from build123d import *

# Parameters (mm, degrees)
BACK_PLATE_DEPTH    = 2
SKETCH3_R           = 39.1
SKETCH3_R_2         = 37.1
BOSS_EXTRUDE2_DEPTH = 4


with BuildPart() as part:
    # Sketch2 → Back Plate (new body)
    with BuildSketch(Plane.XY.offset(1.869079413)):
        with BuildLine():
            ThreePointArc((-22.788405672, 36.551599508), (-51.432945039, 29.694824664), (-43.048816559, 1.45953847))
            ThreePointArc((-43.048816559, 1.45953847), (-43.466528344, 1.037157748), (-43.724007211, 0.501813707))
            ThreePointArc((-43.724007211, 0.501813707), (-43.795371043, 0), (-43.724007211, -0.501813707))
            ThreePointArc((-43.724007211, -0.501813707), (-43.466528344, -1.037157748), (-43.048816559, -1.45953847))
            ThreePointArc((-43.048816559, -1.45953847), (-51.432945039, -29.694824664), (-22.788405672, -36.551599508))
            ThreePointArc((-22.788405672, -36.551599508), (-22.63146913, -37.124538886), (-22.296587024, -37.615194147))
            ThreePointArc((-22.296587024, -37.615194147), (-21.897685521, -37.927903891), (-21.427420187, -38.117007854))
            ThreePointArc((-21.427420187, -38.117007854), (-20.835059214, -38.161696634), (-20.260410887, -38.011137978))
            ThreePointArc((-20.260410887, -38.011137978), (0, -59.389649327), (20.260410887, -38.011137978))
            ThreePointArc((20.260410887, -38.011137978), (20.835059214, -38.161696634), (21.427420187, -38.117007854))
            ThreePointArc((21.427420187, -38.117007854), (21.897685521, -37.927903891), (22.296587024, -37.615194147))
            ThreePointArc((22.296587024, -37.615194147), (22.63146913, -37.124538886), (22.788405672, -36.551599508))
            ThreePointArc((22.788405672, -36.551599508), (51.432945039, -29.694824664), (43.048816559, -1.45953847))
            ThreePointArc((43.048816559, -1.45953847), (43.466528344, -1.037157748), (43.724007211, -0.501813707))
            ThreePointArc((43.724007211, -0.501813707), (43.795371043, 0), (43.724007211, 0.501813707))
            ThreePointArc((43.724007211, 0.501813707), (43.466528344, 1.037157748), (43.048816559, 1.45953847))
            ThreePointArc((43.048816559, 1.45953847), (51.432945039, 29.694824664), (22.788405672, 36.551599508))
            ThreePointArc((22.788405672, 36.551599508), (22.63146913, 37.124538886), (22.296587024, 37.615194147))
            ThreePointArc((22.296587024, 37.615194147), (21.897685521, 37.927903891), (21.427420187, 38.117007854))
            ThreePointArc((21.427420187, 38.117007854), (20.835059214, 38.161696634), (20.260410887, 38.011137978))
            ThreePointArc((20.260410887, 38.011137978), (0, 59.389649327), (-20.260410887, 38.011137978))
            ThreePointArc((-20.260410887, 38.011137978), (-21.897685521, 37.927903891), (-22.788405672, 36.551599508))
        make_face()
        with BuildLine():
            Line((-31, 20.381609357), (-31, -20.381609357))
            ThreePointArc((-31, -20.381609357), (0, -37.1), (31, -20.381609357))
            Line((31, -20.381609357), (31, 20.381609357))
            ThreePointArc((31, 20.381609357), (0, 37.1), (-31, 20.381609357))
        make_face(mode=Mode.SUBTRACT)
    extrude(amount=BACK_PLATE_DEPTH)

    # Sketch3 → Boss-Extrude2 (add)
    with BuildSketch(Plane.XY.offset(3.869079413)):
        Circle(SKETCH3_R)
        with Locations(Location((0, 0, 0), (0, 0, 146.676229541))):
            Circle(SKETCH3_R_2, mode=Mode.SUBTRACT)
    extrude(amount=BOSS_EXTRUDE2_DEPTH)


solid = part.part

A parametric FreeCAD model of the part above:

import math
import FreeCAD as App
import Part
import Sketcher

V = App.Vector

doc = App.newDocument("Part")
params = doc.addObject("Spreadsheet::Sheet", "Params")
for row, (alias, value) in enumerate([
    ("sketch1_radius", "1.8 mm"),
    ("sketch1_radius2", "37.1 mm"),
    ("pad1_length", "2 mm"),
    ("sketch2_diameter", "78.2 mm"),
    ("sketch2_diameter2", "74.2 mm"),
    ("pad2_length", "4 mm"),
], start=1):
    params.set(f"A{row}", alias)
    params.set(f"B{row}", "=" + value)
    params.setAlias(f"B{row}", alias)

body = doc.addObject("PartDesign::Body", "Body")

# Sketch on XY plane
sketch1 = doc.addObject("Sketcher::SketchObject", "Sketch")
body.addObject(sketch1)
sketch1.AttachmentSupport = (doc.XY_Plane, [""])
sketch1.MapMode = "FlatFace"
sketch1.AttachmentOffset = App.Placement(V(0, 0, 1.869079), App.Rotation())
sketch1.addGeometry([
    Part.ArcOfCircle(Part.Circle(V(-33.9, 19.6, 0), V(0, 0, 1), 20.3), math.radians(57), math.radians(243)),  # 0
    Part.ArcOfCircle(Part.Circle(V(-42, 0, 0), V(0, 0, 1), 1.8), math.radians(126), math.radians(164)),  # 1
    Part.ArcOfCircle(Part.Circle(V(-42, 0, 0), V(0, 0, 1), 1.8), math.radians(164), math.radians(196)),  # 2
    Part.ArcOfCircle(Part.Circle(V(-42, 0, 0), V(0, 0, 1), 1.8), math.radians(-164), math.radians(-126)),  # 3
    Part.ArcOfCircle(Part.Circle(V(-33.9, -19.6, 0), V(0, 0, 1), 20.3), math.radians(117), math.radians(303)),  # 4
    Part.ArcOfCircle(Part.Circle(V(-21, -36.4, 0), V(0, 0, 1), 1.8), math.radians(-174), math.radians(-136)),  # 5
    Part.ArcOfCircle(Part.Circle(V(-21, -36.4, 0), V(0, 0, 1), 1.8), math.radians(-136), math.radians(-104)),  # 6
    Part.ArcOfCircle(Part.Circle(V(-21, -36.4, 0), V(0, 0, 1), 1.8), math.radians(-104), math.radians(-66)),  # 7
    Part.ArcOfCircle(Part.Circle(V(0, -39.1, 0), V(0, 0, 1), 20.3), math.radians(177), math.radians(363)),  # 8
    Part.ArcOfCircle(Part.Circle(V(21, -36.4, 0), V(0, 0, 1), 1.8), math.radians(-114), math.radians(-76)),  # 9
    Part.ArcOfCircle(Part.Circle(V(21, -36.4, 0), V(0, 0, 1), 1.8), math.radians(-76), math.radians(-44)),  # 10
    Part.ArcOfCircle(Part.Circle(V(21, -36.4, 0), V(0, 0, 1), 1.8), math.radians(-44), math.radians(-6)),  # 11
    Part.ArcOfCircle(Part.Circle(V(33.9, -19.6, 0), V(0, 0, 1), 20.3), math.radians(-123), math.radians(63)),  # 12
    Part.ArcOfCircle(Part.Circle(V(42, 0, 0), V(0, 0, 1), 1.8), math.radians(-54), math.radians(-16)),  # 13
    Part.ArcOfCircle(Part.Circle(V(42, 0, 0), V(0, 0, 1), 1.8), math.radians(-16), math.radians(16)),  # 14
    Part.ArcOfCircle(Part.Circle(V(42, 0, 0), V(0, 0, 1), 1.8), math.radians(16), math.radians(54)),  # 15
    Part.ArcOfCircle(Part.Circle(V(33.9, 19.6, 0), V(0, 0, 1), 20.3), math.radians(-63), math.radians(123)),  # 16
    Part.ArcOfCircle(Part.Circle(V(21, 36.4, 0), V(0, 0, 1), 1.8), math.radians(6), math.radians(44)),  # 17
    Part.ArcOfCircle(Part.Circle(V(21, 36.4, 0), V(0, 0, 1), 1.8), math.radians(44), math.radians(76)),  # 18
    Part.ArcOfCircle(Part.Circle(V(21, 36.4, 0), V(0, 0, 1), 1.8), math.radians(76), math.radians(114)),  # 19
    Part.ArcOfCircle(Part.Circle(V(0, 39.1, 0), V(0, 0, 1), 20.3), math.radians(-3), math.radians(183)),  # 20
    Part.ArcOfCircle(Part.Circle(V(-21, 36.4, 0), V(0, 0, 1), 1.8), math.radians(66), math.radians(174)),  # 21
    Part.LineSegment(V(-31, -20.4, 0), V(-31, 20.4, 0)),  # 22
    Part.ArcOfCircle(Part.Circle(V(0, 0, 0), V(0, 0, 1), 37.1), math.radians(33), math.radians(147)),  # 23
    Part.LineSegment(V(31, 20.4, 0), V(31, -20.4, 0)),  # 24
    Part.ArcOfCircle(Part.Circle(V(0, 0, 0), V(0, 0, 1), 37.1), math.radians(-147), math.radians(-33)),  # 25
], False)
sketch1.addConstraint([
    Sketcher.Constraint("Coincident", 0, 2, 1, 1),
    Sketcher.Constraint("Tangent", 1, 2, 2, 1),
    Sketcher.Constraint("Tangent", 2, 2, 3, 1),
    Sketcher.Constraint("Coincident", 3, 2, 4, 1),
    Sketcher.Constraint("Coincident", 4, 2, 5, 1),
    Sketcher.Constraint("Tangent", 5, 2, 6, 1),
    Sketcher.Constraint("Tangent", 6, 2, 7, 1),
    Sketcher.Constraint("Coincident", 7, 2, 8, 1),
    Sketcher.Constraint("Coincident", 8, 2, 9, 1),
    Sketcher.Constraint("Tangent", 9, 2, 10, 1),
    Sketcher.Constraint("Tangent", 10, 2, 11, 1),
    Sketcher.Constraint("Coincident", 11, 2, 12, 1),
    Sketcher.Constraint("Coincident", 12, 2, 13, 1),
    Sketcher.Constraint("Tangent", 13, 2, 14, 1),
    Sketcher.Constraint("Tangent", 14, 2, 15, 1),
    Sketcher.Constraint("Coincident", 15, 2, 16, 1),
    Sketcher.Constraint("Coincident", 16, 2, 17, 1),
    Sketcher.Constraint("Tangent", 17, 2, 18, 1),
    Sketcher.Constraint("Tangent", 18, 2, 19, 1),
    Sketcher.Constraint("Coincident", 19, 2, 20, 1),
    Sketcher.Constraint("Coincident", 20, 2, 21, 1),
    Sketcher.Constraint("Coincident", 21, 2, 0, 1),
    Sketcher.Constraint("Coincident", 22, 2, 23, 2),
    Sketcher.Constraint("Coincident", 23, 1, 24, 1),
    Sketcher.Constraint("Coincident", 24, 2, 25, 2),
    Sketcher.Constraint("Coincident", 25, 1, 22, 1),
    Sketcher.Constraint("Vertical", 22),
    Sketcher.Constraint("Vertical", 24),
    Sketcher.Constraint("Coincident", 23, 3, -1, 1),
    Sketcher.Constraint("Coincident", 25, 3, -1, 1),
    Sketcher.Constraint("Coincident", 3, 3, 1, 3),
    Sketcher.Constraint("Coincident", 7, 3, 5, 3),
    Sketcher.Constraint("Coincident", 11, 3, 9, 3),
    Sketcher.Constraint("Coincident", 15, 3, 13, 3),
    Sketcher.Constraint("Coincident", 19, 3, 17, 3),
    Sketcher.Constraint("Equal", 0, 4),
    Sketcher.Constraint("Equal", 3, 5),
    Sketcher.Constraint("Equal", 4, 8),
    Sketcher.Constraint("Equal", 7, 9),
    Sketcher.Constraint("Equal", 8, 12),
    Sketcher.Constraint("Equal", 11, 13),
    Sketcher.Constraint("Equal", 12, 16),
    Sketcher.Constraint("Equal", 15, 17),
    Sketcher.Constraint("Equal", 16, 20),
    Sketcher.Constraint("Equal", 19, 21),
    Sketcher.Constraint("Equal", 23, 25),
    Sketcher.Constraint("Symmetric", 0, 3, 12, 3, -1, 1),
    Sketcher.Constraint("Symmetric", 1, 3, 13, 3, -1, 1),
    Sketcher.Constraint("Symmetric", 4, 3, 16, 3, -1, 1),
    Sketcher.Constraint("Symmetric", 5, 3, 17, 3, -1, 1),
    Sketcher.Constraint("Symmetric", 8, 3, 20, 3, -1, 1),
    Sketcher.Constraint("Symmetric", 9, 3, 21, 3, -1, 1),
    Sketcher.Constraint("Symmetric", 5, 3, 9, 3, -2),
    Sketcher.Constraint("Symmetric", 4, 3, 12, 3, -2),
    Sketcher.Constraint("Symmetric", 2, 2, 13, 2, -2),
    Sketcher.Constraint("PointOnObject", 8, 3, -2),
    Sketcher.Constraint("Horizontal", 6, 2, 9, 2),
    Sketcher.Constraint("Horizontal", 5, 2, 10, 2),
    Sketcher.Constraint("Horizontal", 1, 2, 14, 2),
    Sketcher.Constraint("Horizontal", 22, 2, 23, 1),
    Sketcher.Constraint("Vertical", 1, 2, 2, 2),
    Sketcher.Constraint("Vertical", 10, 2, 17, 2),
    Sketcher.Constraint("Vertical", 9, 2, 18, 2),
    Sketcher.Constraint("Radius", 1, 1.8),
    Sketcher.Constraint("Radius", 23, 37.1),
    Sketcher.Constraint("DistanceX", 22, 2, -1, 1, 31.0),
    Sketcher.Constraint("DistanceY", 8, 3, -1, 1, 39.1),
    Sketcher.Constraint("DistanceY", 4, 3, 0, 3, 39.1),
    Sketcher.Constraint("Radius", 0, 20.289649),
    Sketcher.Constraint("DistanceY", 4, 2, -1, 1, 36.5516),
    Sketcher.Constraint("DistanceX", 5, 2, 5, 3, 1.298902),
    Sketcher.Constraint("DistanceX", 1, 3, -1, 1, 41.995371),
    Sketcher.Constraint("DistanceY", 5, 3, -1, 1, 36.369058),
    Sketcher.Constraint("DistanceY", -1, 1, 0, 2, 1.459538),
    Sketcher.Constraint("DistanceX", 6, 2, -1, 1, 21.42742),
    Sketcher.Constraint("DistanceX", 1, 2, 0, 2, 0.675191),
])
sketch1.setExpression("Constraints[63]", "Params.sketch1_radius")
sketch1.setExpression("Constraints[64]", "Params.sketch1_radius2")
pad1 = doc.addObject("PartDesign::Pad", "Pad")
body.addObject(pad1)
pad1.Profile = sketch1
pad1.setExpression("Length", "Params.pad1_length")

# Sketch on XY plane
sketch2 = doc.addObject("Sketcher::SketchObject", "Sketch001")
body.addObject(sketch2)
sketch2.AttachmentSupport = (doc.XY_Plane, [""])
sketch2.MapMode = "FlatFace"
sketch2.AttachmentOffset = App.Placement(V(0, 0, 3.869079), App.Rotation())
sketch2.addGeometry([
    Part.Circle(V(0, 0, 0), V(0, 0, 1), 39),
    Part.Circle(V(0, 0, 0), V(0, 0, 1), 37),
], False)
sketch2.addConstraint([
    Sketcher.Constraint("Coincident", 0, 3, -1, 1),
    Sketcher.Constraint("Coincident", 1, 3, -1, 1),
    Sketcher.Constraint("Diameter", 0, 78.2),
    Sketcher.Constraint("Diameter", 1, 74.2),
])
sketch2.setExpression("Constraints[2]", "Params.sketch2_diameter")
sketch2.setExpression("Constraints[3]", "Params.sketch2_diameter2")
pad2 = doc.addObject("PartDesign::Pad", "Pad001")
body.addObject(pad2)
pad2.Profile = sketch2
pad2.setExpression("Length", "Params.pad2_length")

doc.recompute()
